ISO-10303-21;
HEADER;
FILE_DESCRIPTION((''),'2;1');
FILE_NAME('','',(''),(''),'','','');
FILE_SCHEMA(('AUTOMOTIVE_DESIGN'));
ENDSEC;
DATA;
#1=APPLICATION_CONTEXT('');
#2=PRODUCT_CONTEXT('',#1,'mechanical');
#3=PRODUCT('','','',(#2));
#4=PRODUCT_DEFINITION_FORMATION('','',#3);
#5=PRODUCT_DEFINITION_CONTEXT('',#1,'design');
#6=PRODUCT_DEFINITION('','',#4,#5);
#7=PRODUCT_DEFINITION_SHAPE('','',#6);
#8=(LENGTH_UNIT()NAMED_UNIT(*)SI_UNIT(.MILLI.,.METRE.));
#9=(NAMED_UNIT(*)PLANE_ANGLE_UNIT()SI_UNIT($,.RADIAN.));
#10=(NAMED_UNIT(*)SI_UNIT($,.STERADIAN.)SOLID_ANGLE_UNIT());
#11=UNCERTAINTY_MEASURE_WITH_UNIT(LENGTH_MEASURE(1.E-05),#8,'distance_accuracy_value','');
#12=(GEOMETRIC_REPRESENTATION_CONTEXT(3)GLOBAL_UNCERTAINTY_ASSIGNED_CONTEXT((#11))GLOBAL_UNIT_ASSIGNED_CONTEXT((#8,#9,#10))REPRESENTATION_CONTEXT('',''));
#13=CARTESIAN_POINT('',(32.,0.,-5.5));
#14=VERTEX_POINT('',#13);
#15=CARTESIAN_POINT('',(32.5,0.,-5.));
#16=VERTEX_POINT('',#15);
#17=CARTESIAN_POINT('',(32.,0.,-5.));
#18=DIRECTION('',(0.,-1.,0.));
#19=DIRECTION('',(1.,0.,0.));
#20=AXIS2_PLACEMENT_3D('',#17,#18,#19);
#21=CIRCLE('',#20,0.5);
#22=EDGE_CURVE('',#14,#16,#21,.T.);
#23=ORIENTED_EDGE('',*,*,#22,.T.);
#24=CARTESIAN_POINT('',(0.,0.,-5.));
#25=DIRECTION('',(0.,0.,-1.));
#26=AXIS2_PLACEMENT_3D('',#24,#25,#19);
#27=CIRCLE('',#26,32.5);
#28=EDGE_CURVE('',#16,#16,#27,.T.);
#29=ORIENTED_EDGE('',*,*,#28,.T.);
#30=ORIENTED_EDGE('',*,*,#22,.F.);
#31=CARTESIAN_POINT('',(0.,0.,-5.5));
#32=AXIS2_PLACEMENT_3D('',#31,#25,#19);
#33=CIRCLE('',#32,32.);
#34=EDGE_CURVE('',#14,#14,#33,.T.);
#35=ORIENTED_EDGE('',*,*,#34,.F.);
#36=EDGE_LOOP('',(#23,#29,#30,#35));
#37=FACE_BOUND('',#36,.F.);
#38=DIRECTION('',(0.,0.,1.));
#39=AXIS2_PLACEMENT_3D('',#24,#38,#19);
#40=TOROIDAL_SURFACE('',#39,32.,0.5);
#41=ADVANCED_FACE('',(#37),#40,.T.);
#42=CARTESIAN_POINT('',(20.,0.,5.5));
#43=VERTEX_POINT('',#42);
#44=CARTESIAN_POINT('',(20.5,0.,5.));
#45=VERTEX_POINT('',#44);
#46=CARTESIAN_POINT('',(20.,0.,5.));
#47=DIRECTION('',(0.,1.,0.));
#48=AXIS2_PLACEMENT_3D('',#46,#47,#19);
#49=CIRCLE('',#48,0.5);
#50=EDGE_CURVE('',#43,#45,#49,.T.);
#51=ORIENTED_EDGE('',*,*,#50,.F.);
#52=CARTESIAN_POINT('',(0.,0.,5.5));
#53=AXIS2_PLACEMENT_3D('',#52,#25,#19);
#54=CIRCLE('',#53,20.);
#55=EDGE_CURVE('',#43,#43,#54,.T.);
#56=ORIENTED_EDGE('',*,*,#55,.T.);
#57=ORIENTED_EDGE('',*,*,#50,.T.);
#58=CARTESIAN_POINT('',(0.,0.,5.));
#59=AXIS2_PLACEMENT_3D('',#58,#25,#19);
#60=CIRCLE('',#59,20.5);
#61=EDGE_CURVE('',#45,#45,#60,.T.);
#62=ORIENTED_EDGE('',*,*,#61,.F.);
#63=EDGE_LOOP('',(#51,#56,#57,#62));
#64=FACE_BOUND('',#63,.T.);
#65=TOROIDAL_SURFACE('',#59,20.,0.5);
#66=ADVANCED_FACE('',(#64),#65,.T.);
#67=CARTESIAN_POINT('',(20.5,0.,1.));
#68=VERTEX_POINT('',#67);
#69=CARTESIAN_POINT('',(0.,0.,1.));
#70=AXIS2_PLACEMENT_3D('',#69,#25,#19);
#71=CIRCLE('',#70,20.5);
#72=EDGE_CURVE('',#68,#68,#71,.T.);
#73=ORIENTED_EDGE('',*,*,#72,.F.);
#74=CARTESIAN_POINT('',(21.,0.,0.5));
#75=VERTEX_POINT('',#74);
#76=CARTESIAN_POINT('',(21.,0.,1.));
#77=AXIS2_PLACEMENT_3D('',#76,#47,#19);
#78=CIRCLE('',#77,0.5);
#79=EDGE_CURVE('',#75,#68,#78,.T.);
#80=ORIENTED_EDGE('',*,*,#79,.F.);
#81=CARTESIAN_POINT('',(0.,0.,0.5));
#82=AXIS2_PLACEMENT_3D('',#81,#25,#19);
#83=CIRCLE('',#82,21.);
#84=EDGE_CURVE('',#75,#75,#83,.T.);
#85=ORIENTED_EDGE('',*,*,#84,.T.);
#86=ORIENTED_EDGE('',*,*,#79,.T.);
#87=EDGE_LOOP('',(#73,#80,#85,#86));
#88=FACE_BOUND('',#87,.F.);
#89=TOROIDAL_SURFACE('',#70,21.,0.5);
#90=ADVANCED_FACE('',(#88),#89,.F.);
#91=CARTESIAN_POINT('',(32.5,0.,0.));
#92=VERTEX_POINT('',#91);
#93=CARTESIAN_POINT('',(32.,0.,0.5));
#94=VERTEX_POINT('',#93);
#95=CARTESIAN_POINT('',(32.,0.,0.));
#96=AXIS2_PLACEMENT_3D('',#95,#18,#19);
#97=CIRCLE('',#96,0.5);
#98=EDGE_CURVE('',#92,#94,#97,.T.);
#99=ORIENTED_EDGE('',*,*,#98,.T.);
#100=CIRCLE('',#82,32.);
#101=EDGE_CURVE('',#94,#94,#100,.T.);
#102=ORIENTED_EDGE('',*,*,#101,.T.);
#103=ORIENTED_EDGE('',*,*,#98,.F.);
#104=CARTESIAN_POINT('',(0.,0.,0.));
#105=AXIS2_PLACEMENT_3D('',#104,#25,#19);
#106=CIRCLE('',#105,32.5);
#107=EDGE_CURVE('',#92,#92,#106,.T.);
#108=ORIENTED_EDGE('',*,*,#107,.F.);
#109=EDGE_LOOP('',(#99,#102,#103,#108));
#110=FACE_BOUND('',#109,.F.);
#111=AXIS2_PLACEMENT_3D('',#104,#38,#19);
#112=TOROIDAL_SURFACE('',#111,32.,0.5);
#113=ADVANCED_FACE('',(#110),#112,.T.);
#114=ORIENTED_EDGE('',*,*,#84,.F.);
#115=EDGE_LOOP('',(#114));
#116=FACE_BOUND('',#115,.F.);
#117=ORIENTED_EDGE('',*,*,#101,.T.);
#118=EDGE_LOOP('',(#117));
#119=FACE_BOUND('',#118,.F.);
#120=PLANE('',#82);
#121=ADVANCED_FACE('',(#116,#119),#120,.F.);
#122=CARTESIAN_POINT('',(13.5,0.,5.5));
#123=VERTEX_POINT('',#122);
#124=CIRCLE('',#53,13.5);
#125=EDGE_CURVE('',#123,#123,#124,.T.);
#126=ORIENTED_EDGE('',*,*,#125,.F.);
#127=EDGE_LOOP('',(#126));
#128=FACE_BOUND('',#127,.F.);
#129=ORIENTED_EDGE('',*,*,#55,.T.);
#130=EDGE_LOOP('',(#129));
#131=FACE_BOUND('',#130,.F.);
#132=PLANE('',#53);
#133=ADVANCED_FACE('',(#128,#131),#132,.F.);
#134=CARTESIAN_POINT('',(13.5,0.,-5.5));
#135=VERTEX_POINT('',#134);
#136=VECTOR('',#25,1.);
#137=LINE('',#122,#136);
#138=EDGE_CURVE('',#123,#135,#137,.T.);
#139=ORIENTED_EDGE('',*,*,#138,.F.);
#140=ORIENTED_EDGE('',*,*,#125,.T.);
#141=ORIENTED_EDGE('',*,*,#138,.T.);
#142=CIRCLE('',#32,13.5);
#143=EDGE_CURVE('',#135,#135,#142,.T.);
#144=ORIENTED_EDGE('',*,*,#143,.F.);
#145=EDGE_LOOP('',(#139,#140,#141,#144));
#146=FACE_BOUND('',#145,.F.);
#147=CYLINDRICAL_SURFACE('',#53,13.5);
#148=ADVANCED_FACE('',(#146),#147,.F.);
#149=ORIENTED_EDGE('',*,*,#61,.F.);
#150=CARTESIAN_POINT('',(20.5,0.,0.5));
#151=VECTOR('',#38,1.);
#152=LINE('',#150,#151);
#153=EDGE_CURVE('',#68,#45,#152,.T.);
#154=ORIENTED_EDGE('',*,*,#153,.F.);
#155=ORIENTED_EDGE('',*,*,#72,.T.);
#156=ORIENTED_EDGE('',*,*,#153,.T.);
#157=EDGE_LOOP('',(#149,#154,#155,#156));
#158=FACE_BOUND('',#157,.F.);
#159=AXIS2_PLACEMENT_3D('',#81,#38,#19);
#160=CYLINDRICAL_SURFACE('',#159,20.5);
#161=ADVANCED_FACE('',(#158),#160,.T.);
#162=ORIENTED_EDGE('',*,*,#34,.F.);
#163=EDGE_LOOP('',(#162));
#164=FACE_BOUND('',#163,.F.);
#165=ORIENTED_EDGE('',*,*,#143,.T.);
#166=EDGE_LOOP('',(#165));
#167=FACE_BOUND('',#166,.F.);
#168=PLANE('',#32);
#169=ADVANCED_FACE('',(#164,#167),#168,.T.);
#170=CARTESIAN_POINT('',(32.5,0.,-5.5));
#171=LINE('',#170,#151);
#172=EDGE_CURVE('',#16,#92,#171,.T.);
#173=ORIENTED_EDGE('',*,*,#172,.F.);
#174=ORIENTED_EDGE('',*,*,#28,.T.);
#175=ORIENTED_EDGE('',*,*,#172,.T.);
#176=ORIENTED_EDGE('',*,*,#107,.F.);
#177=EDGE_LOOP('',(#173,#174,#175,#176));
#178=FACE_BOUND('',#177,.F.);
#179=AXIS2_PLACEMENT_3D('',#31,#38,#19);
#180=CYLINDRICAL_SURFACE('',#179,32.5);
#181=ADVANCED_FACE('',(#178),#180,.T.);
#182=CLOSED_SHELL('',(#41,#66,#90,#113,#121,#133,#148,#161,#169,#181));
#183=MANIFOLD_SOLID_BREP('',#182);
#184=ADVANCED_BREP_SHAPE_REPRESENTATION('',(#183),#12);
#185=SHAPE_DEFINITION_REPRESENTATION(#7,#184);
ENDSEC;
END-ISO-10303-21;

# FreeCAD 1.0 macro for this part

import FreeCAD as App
import Part
import Sketcher
from FreeCAD import Vector


def edges_at(feature, points):
    """Names of the edges that pass closest to the given points."""
    edges = feature.Shape.Edges
    near = lambda p: min(range(len(edges)), key=lambda i: edges[i].distToShape(Part.Vertex(*p))[0])
    return sorted({f"Edge{near(p) + 1}" for p in points})

doc = App.newDocument("Part")
body = doc.addObject("PartDesign::Body", "Body")

sketch1 = body.newObject("Sketcher::SketchObject", "Sketch")
sketch1.AttachmentSupport = (doc.getObject("XZ_Plane"), [""])
sketch1.MapMode = "FlatFace"
sketch1.addGeometry(Part.LineSegment(Vector(20, 6, 0), Vector(14, 6, 0)), False)
sketch1.addGeometry(Part.LineSegment(Vector(14, 6, 0), Vector(14, -6, 0)), False)
sketch1.addGeometry(Part.LineSegment(Vector(14, -6, 0), Vector(32, -6, 0)), False)
sketch1.addGeometry(Part.LineSegment(Vector(32, -6, 0), Vector(32, 0, 0)), False)
sketch1.addGeometry(Part.LineSegment(Vector(32, 0, 0), Vector(20, 0, 0)), False)
sketch1.addGeometry(Part.LineSegment(Vector(20, 0, 0), Vector(20, 6, 0)), False)
sketch1.addConstraint(Sketcher.Constraint("Coincident", 0, 2, 1, 1))
sketch1.addConstraint(Sketcher.Constraint("Coincident", 1, 2, 2, 1))
sketch1.addConstraint(Sketcher.Constraint("Coincident", 2, 2, 3, 1))
sketch1.addConstraint(Sketcher.Constraint("Coincident", 3, 2, 4, 1))
sketch1.addConstraint(Sketcher.Constraint("Coincident", 4, 2, 5, 1))
sketch1.addConstraint(Sketcher.Constraint("Coincident", 5, 2, 0, 1))
sketch1.addConstraint(Sketcher.Constraint("Horizontal", 0))
sketch1.addConstraint(Sketcher.Constraint("Vertical", 1))
sketch1.addConstraint(Sketcher.Constraint("Horizontal", 2))
sketch1.addConstraint(Sketcher.Constraint("Vertical", 3))
sketch1.addConstraint(Sketcher.Constraint("Horizontal", 4))
sketch1.addConstraint(Sketcher.Constraint("Vertical", 5))
sketch1.addConstraint(Sketcher.Constraint("DistanceX", 0, 2, 0, 1, 7.0))
sketch1.addConstraint(Sketcher.Constraint("DistanceX", 2, 1, 2, 2, 19.0))
sketch1.addConstraint(Sketcher.Constraint("DistanceY", 1, 2, 1, 1, 11.0))
sketch1.addConstraint(Sketcher.Constraint("DistanceY", 3, 1, 3, 2, 6.0))
sketch1.addConstraint(Sketcher.Constraint("DistanceX", -1, 1, 0, 2, 13.5))
sketch1.addConstraint(Sketcher.Constraint("DistanceY", -1, 1, 0, 2, 5.5))
revolution = body.newObject("PartDesign::Revolution", "Revolution")
revolution.Profile = sketch1
revolution.ReferenceAxis = (sketch1, ["V_Axis"])
revolution.Angle = 360
doc.recompute()

fillet = body.newObject("PartDesign::Fillet", "Fillet")
fillet.Base = (revolution, edges_at(revolution, [
    (-32.5, 0, -5.5),
    (-32.5, 0, 0.5),
    (-20.5, 0, 5.5),
    (-20.5, 0, 0.5),
]))
fillet.Radius = 0.5

doc.recompute()
